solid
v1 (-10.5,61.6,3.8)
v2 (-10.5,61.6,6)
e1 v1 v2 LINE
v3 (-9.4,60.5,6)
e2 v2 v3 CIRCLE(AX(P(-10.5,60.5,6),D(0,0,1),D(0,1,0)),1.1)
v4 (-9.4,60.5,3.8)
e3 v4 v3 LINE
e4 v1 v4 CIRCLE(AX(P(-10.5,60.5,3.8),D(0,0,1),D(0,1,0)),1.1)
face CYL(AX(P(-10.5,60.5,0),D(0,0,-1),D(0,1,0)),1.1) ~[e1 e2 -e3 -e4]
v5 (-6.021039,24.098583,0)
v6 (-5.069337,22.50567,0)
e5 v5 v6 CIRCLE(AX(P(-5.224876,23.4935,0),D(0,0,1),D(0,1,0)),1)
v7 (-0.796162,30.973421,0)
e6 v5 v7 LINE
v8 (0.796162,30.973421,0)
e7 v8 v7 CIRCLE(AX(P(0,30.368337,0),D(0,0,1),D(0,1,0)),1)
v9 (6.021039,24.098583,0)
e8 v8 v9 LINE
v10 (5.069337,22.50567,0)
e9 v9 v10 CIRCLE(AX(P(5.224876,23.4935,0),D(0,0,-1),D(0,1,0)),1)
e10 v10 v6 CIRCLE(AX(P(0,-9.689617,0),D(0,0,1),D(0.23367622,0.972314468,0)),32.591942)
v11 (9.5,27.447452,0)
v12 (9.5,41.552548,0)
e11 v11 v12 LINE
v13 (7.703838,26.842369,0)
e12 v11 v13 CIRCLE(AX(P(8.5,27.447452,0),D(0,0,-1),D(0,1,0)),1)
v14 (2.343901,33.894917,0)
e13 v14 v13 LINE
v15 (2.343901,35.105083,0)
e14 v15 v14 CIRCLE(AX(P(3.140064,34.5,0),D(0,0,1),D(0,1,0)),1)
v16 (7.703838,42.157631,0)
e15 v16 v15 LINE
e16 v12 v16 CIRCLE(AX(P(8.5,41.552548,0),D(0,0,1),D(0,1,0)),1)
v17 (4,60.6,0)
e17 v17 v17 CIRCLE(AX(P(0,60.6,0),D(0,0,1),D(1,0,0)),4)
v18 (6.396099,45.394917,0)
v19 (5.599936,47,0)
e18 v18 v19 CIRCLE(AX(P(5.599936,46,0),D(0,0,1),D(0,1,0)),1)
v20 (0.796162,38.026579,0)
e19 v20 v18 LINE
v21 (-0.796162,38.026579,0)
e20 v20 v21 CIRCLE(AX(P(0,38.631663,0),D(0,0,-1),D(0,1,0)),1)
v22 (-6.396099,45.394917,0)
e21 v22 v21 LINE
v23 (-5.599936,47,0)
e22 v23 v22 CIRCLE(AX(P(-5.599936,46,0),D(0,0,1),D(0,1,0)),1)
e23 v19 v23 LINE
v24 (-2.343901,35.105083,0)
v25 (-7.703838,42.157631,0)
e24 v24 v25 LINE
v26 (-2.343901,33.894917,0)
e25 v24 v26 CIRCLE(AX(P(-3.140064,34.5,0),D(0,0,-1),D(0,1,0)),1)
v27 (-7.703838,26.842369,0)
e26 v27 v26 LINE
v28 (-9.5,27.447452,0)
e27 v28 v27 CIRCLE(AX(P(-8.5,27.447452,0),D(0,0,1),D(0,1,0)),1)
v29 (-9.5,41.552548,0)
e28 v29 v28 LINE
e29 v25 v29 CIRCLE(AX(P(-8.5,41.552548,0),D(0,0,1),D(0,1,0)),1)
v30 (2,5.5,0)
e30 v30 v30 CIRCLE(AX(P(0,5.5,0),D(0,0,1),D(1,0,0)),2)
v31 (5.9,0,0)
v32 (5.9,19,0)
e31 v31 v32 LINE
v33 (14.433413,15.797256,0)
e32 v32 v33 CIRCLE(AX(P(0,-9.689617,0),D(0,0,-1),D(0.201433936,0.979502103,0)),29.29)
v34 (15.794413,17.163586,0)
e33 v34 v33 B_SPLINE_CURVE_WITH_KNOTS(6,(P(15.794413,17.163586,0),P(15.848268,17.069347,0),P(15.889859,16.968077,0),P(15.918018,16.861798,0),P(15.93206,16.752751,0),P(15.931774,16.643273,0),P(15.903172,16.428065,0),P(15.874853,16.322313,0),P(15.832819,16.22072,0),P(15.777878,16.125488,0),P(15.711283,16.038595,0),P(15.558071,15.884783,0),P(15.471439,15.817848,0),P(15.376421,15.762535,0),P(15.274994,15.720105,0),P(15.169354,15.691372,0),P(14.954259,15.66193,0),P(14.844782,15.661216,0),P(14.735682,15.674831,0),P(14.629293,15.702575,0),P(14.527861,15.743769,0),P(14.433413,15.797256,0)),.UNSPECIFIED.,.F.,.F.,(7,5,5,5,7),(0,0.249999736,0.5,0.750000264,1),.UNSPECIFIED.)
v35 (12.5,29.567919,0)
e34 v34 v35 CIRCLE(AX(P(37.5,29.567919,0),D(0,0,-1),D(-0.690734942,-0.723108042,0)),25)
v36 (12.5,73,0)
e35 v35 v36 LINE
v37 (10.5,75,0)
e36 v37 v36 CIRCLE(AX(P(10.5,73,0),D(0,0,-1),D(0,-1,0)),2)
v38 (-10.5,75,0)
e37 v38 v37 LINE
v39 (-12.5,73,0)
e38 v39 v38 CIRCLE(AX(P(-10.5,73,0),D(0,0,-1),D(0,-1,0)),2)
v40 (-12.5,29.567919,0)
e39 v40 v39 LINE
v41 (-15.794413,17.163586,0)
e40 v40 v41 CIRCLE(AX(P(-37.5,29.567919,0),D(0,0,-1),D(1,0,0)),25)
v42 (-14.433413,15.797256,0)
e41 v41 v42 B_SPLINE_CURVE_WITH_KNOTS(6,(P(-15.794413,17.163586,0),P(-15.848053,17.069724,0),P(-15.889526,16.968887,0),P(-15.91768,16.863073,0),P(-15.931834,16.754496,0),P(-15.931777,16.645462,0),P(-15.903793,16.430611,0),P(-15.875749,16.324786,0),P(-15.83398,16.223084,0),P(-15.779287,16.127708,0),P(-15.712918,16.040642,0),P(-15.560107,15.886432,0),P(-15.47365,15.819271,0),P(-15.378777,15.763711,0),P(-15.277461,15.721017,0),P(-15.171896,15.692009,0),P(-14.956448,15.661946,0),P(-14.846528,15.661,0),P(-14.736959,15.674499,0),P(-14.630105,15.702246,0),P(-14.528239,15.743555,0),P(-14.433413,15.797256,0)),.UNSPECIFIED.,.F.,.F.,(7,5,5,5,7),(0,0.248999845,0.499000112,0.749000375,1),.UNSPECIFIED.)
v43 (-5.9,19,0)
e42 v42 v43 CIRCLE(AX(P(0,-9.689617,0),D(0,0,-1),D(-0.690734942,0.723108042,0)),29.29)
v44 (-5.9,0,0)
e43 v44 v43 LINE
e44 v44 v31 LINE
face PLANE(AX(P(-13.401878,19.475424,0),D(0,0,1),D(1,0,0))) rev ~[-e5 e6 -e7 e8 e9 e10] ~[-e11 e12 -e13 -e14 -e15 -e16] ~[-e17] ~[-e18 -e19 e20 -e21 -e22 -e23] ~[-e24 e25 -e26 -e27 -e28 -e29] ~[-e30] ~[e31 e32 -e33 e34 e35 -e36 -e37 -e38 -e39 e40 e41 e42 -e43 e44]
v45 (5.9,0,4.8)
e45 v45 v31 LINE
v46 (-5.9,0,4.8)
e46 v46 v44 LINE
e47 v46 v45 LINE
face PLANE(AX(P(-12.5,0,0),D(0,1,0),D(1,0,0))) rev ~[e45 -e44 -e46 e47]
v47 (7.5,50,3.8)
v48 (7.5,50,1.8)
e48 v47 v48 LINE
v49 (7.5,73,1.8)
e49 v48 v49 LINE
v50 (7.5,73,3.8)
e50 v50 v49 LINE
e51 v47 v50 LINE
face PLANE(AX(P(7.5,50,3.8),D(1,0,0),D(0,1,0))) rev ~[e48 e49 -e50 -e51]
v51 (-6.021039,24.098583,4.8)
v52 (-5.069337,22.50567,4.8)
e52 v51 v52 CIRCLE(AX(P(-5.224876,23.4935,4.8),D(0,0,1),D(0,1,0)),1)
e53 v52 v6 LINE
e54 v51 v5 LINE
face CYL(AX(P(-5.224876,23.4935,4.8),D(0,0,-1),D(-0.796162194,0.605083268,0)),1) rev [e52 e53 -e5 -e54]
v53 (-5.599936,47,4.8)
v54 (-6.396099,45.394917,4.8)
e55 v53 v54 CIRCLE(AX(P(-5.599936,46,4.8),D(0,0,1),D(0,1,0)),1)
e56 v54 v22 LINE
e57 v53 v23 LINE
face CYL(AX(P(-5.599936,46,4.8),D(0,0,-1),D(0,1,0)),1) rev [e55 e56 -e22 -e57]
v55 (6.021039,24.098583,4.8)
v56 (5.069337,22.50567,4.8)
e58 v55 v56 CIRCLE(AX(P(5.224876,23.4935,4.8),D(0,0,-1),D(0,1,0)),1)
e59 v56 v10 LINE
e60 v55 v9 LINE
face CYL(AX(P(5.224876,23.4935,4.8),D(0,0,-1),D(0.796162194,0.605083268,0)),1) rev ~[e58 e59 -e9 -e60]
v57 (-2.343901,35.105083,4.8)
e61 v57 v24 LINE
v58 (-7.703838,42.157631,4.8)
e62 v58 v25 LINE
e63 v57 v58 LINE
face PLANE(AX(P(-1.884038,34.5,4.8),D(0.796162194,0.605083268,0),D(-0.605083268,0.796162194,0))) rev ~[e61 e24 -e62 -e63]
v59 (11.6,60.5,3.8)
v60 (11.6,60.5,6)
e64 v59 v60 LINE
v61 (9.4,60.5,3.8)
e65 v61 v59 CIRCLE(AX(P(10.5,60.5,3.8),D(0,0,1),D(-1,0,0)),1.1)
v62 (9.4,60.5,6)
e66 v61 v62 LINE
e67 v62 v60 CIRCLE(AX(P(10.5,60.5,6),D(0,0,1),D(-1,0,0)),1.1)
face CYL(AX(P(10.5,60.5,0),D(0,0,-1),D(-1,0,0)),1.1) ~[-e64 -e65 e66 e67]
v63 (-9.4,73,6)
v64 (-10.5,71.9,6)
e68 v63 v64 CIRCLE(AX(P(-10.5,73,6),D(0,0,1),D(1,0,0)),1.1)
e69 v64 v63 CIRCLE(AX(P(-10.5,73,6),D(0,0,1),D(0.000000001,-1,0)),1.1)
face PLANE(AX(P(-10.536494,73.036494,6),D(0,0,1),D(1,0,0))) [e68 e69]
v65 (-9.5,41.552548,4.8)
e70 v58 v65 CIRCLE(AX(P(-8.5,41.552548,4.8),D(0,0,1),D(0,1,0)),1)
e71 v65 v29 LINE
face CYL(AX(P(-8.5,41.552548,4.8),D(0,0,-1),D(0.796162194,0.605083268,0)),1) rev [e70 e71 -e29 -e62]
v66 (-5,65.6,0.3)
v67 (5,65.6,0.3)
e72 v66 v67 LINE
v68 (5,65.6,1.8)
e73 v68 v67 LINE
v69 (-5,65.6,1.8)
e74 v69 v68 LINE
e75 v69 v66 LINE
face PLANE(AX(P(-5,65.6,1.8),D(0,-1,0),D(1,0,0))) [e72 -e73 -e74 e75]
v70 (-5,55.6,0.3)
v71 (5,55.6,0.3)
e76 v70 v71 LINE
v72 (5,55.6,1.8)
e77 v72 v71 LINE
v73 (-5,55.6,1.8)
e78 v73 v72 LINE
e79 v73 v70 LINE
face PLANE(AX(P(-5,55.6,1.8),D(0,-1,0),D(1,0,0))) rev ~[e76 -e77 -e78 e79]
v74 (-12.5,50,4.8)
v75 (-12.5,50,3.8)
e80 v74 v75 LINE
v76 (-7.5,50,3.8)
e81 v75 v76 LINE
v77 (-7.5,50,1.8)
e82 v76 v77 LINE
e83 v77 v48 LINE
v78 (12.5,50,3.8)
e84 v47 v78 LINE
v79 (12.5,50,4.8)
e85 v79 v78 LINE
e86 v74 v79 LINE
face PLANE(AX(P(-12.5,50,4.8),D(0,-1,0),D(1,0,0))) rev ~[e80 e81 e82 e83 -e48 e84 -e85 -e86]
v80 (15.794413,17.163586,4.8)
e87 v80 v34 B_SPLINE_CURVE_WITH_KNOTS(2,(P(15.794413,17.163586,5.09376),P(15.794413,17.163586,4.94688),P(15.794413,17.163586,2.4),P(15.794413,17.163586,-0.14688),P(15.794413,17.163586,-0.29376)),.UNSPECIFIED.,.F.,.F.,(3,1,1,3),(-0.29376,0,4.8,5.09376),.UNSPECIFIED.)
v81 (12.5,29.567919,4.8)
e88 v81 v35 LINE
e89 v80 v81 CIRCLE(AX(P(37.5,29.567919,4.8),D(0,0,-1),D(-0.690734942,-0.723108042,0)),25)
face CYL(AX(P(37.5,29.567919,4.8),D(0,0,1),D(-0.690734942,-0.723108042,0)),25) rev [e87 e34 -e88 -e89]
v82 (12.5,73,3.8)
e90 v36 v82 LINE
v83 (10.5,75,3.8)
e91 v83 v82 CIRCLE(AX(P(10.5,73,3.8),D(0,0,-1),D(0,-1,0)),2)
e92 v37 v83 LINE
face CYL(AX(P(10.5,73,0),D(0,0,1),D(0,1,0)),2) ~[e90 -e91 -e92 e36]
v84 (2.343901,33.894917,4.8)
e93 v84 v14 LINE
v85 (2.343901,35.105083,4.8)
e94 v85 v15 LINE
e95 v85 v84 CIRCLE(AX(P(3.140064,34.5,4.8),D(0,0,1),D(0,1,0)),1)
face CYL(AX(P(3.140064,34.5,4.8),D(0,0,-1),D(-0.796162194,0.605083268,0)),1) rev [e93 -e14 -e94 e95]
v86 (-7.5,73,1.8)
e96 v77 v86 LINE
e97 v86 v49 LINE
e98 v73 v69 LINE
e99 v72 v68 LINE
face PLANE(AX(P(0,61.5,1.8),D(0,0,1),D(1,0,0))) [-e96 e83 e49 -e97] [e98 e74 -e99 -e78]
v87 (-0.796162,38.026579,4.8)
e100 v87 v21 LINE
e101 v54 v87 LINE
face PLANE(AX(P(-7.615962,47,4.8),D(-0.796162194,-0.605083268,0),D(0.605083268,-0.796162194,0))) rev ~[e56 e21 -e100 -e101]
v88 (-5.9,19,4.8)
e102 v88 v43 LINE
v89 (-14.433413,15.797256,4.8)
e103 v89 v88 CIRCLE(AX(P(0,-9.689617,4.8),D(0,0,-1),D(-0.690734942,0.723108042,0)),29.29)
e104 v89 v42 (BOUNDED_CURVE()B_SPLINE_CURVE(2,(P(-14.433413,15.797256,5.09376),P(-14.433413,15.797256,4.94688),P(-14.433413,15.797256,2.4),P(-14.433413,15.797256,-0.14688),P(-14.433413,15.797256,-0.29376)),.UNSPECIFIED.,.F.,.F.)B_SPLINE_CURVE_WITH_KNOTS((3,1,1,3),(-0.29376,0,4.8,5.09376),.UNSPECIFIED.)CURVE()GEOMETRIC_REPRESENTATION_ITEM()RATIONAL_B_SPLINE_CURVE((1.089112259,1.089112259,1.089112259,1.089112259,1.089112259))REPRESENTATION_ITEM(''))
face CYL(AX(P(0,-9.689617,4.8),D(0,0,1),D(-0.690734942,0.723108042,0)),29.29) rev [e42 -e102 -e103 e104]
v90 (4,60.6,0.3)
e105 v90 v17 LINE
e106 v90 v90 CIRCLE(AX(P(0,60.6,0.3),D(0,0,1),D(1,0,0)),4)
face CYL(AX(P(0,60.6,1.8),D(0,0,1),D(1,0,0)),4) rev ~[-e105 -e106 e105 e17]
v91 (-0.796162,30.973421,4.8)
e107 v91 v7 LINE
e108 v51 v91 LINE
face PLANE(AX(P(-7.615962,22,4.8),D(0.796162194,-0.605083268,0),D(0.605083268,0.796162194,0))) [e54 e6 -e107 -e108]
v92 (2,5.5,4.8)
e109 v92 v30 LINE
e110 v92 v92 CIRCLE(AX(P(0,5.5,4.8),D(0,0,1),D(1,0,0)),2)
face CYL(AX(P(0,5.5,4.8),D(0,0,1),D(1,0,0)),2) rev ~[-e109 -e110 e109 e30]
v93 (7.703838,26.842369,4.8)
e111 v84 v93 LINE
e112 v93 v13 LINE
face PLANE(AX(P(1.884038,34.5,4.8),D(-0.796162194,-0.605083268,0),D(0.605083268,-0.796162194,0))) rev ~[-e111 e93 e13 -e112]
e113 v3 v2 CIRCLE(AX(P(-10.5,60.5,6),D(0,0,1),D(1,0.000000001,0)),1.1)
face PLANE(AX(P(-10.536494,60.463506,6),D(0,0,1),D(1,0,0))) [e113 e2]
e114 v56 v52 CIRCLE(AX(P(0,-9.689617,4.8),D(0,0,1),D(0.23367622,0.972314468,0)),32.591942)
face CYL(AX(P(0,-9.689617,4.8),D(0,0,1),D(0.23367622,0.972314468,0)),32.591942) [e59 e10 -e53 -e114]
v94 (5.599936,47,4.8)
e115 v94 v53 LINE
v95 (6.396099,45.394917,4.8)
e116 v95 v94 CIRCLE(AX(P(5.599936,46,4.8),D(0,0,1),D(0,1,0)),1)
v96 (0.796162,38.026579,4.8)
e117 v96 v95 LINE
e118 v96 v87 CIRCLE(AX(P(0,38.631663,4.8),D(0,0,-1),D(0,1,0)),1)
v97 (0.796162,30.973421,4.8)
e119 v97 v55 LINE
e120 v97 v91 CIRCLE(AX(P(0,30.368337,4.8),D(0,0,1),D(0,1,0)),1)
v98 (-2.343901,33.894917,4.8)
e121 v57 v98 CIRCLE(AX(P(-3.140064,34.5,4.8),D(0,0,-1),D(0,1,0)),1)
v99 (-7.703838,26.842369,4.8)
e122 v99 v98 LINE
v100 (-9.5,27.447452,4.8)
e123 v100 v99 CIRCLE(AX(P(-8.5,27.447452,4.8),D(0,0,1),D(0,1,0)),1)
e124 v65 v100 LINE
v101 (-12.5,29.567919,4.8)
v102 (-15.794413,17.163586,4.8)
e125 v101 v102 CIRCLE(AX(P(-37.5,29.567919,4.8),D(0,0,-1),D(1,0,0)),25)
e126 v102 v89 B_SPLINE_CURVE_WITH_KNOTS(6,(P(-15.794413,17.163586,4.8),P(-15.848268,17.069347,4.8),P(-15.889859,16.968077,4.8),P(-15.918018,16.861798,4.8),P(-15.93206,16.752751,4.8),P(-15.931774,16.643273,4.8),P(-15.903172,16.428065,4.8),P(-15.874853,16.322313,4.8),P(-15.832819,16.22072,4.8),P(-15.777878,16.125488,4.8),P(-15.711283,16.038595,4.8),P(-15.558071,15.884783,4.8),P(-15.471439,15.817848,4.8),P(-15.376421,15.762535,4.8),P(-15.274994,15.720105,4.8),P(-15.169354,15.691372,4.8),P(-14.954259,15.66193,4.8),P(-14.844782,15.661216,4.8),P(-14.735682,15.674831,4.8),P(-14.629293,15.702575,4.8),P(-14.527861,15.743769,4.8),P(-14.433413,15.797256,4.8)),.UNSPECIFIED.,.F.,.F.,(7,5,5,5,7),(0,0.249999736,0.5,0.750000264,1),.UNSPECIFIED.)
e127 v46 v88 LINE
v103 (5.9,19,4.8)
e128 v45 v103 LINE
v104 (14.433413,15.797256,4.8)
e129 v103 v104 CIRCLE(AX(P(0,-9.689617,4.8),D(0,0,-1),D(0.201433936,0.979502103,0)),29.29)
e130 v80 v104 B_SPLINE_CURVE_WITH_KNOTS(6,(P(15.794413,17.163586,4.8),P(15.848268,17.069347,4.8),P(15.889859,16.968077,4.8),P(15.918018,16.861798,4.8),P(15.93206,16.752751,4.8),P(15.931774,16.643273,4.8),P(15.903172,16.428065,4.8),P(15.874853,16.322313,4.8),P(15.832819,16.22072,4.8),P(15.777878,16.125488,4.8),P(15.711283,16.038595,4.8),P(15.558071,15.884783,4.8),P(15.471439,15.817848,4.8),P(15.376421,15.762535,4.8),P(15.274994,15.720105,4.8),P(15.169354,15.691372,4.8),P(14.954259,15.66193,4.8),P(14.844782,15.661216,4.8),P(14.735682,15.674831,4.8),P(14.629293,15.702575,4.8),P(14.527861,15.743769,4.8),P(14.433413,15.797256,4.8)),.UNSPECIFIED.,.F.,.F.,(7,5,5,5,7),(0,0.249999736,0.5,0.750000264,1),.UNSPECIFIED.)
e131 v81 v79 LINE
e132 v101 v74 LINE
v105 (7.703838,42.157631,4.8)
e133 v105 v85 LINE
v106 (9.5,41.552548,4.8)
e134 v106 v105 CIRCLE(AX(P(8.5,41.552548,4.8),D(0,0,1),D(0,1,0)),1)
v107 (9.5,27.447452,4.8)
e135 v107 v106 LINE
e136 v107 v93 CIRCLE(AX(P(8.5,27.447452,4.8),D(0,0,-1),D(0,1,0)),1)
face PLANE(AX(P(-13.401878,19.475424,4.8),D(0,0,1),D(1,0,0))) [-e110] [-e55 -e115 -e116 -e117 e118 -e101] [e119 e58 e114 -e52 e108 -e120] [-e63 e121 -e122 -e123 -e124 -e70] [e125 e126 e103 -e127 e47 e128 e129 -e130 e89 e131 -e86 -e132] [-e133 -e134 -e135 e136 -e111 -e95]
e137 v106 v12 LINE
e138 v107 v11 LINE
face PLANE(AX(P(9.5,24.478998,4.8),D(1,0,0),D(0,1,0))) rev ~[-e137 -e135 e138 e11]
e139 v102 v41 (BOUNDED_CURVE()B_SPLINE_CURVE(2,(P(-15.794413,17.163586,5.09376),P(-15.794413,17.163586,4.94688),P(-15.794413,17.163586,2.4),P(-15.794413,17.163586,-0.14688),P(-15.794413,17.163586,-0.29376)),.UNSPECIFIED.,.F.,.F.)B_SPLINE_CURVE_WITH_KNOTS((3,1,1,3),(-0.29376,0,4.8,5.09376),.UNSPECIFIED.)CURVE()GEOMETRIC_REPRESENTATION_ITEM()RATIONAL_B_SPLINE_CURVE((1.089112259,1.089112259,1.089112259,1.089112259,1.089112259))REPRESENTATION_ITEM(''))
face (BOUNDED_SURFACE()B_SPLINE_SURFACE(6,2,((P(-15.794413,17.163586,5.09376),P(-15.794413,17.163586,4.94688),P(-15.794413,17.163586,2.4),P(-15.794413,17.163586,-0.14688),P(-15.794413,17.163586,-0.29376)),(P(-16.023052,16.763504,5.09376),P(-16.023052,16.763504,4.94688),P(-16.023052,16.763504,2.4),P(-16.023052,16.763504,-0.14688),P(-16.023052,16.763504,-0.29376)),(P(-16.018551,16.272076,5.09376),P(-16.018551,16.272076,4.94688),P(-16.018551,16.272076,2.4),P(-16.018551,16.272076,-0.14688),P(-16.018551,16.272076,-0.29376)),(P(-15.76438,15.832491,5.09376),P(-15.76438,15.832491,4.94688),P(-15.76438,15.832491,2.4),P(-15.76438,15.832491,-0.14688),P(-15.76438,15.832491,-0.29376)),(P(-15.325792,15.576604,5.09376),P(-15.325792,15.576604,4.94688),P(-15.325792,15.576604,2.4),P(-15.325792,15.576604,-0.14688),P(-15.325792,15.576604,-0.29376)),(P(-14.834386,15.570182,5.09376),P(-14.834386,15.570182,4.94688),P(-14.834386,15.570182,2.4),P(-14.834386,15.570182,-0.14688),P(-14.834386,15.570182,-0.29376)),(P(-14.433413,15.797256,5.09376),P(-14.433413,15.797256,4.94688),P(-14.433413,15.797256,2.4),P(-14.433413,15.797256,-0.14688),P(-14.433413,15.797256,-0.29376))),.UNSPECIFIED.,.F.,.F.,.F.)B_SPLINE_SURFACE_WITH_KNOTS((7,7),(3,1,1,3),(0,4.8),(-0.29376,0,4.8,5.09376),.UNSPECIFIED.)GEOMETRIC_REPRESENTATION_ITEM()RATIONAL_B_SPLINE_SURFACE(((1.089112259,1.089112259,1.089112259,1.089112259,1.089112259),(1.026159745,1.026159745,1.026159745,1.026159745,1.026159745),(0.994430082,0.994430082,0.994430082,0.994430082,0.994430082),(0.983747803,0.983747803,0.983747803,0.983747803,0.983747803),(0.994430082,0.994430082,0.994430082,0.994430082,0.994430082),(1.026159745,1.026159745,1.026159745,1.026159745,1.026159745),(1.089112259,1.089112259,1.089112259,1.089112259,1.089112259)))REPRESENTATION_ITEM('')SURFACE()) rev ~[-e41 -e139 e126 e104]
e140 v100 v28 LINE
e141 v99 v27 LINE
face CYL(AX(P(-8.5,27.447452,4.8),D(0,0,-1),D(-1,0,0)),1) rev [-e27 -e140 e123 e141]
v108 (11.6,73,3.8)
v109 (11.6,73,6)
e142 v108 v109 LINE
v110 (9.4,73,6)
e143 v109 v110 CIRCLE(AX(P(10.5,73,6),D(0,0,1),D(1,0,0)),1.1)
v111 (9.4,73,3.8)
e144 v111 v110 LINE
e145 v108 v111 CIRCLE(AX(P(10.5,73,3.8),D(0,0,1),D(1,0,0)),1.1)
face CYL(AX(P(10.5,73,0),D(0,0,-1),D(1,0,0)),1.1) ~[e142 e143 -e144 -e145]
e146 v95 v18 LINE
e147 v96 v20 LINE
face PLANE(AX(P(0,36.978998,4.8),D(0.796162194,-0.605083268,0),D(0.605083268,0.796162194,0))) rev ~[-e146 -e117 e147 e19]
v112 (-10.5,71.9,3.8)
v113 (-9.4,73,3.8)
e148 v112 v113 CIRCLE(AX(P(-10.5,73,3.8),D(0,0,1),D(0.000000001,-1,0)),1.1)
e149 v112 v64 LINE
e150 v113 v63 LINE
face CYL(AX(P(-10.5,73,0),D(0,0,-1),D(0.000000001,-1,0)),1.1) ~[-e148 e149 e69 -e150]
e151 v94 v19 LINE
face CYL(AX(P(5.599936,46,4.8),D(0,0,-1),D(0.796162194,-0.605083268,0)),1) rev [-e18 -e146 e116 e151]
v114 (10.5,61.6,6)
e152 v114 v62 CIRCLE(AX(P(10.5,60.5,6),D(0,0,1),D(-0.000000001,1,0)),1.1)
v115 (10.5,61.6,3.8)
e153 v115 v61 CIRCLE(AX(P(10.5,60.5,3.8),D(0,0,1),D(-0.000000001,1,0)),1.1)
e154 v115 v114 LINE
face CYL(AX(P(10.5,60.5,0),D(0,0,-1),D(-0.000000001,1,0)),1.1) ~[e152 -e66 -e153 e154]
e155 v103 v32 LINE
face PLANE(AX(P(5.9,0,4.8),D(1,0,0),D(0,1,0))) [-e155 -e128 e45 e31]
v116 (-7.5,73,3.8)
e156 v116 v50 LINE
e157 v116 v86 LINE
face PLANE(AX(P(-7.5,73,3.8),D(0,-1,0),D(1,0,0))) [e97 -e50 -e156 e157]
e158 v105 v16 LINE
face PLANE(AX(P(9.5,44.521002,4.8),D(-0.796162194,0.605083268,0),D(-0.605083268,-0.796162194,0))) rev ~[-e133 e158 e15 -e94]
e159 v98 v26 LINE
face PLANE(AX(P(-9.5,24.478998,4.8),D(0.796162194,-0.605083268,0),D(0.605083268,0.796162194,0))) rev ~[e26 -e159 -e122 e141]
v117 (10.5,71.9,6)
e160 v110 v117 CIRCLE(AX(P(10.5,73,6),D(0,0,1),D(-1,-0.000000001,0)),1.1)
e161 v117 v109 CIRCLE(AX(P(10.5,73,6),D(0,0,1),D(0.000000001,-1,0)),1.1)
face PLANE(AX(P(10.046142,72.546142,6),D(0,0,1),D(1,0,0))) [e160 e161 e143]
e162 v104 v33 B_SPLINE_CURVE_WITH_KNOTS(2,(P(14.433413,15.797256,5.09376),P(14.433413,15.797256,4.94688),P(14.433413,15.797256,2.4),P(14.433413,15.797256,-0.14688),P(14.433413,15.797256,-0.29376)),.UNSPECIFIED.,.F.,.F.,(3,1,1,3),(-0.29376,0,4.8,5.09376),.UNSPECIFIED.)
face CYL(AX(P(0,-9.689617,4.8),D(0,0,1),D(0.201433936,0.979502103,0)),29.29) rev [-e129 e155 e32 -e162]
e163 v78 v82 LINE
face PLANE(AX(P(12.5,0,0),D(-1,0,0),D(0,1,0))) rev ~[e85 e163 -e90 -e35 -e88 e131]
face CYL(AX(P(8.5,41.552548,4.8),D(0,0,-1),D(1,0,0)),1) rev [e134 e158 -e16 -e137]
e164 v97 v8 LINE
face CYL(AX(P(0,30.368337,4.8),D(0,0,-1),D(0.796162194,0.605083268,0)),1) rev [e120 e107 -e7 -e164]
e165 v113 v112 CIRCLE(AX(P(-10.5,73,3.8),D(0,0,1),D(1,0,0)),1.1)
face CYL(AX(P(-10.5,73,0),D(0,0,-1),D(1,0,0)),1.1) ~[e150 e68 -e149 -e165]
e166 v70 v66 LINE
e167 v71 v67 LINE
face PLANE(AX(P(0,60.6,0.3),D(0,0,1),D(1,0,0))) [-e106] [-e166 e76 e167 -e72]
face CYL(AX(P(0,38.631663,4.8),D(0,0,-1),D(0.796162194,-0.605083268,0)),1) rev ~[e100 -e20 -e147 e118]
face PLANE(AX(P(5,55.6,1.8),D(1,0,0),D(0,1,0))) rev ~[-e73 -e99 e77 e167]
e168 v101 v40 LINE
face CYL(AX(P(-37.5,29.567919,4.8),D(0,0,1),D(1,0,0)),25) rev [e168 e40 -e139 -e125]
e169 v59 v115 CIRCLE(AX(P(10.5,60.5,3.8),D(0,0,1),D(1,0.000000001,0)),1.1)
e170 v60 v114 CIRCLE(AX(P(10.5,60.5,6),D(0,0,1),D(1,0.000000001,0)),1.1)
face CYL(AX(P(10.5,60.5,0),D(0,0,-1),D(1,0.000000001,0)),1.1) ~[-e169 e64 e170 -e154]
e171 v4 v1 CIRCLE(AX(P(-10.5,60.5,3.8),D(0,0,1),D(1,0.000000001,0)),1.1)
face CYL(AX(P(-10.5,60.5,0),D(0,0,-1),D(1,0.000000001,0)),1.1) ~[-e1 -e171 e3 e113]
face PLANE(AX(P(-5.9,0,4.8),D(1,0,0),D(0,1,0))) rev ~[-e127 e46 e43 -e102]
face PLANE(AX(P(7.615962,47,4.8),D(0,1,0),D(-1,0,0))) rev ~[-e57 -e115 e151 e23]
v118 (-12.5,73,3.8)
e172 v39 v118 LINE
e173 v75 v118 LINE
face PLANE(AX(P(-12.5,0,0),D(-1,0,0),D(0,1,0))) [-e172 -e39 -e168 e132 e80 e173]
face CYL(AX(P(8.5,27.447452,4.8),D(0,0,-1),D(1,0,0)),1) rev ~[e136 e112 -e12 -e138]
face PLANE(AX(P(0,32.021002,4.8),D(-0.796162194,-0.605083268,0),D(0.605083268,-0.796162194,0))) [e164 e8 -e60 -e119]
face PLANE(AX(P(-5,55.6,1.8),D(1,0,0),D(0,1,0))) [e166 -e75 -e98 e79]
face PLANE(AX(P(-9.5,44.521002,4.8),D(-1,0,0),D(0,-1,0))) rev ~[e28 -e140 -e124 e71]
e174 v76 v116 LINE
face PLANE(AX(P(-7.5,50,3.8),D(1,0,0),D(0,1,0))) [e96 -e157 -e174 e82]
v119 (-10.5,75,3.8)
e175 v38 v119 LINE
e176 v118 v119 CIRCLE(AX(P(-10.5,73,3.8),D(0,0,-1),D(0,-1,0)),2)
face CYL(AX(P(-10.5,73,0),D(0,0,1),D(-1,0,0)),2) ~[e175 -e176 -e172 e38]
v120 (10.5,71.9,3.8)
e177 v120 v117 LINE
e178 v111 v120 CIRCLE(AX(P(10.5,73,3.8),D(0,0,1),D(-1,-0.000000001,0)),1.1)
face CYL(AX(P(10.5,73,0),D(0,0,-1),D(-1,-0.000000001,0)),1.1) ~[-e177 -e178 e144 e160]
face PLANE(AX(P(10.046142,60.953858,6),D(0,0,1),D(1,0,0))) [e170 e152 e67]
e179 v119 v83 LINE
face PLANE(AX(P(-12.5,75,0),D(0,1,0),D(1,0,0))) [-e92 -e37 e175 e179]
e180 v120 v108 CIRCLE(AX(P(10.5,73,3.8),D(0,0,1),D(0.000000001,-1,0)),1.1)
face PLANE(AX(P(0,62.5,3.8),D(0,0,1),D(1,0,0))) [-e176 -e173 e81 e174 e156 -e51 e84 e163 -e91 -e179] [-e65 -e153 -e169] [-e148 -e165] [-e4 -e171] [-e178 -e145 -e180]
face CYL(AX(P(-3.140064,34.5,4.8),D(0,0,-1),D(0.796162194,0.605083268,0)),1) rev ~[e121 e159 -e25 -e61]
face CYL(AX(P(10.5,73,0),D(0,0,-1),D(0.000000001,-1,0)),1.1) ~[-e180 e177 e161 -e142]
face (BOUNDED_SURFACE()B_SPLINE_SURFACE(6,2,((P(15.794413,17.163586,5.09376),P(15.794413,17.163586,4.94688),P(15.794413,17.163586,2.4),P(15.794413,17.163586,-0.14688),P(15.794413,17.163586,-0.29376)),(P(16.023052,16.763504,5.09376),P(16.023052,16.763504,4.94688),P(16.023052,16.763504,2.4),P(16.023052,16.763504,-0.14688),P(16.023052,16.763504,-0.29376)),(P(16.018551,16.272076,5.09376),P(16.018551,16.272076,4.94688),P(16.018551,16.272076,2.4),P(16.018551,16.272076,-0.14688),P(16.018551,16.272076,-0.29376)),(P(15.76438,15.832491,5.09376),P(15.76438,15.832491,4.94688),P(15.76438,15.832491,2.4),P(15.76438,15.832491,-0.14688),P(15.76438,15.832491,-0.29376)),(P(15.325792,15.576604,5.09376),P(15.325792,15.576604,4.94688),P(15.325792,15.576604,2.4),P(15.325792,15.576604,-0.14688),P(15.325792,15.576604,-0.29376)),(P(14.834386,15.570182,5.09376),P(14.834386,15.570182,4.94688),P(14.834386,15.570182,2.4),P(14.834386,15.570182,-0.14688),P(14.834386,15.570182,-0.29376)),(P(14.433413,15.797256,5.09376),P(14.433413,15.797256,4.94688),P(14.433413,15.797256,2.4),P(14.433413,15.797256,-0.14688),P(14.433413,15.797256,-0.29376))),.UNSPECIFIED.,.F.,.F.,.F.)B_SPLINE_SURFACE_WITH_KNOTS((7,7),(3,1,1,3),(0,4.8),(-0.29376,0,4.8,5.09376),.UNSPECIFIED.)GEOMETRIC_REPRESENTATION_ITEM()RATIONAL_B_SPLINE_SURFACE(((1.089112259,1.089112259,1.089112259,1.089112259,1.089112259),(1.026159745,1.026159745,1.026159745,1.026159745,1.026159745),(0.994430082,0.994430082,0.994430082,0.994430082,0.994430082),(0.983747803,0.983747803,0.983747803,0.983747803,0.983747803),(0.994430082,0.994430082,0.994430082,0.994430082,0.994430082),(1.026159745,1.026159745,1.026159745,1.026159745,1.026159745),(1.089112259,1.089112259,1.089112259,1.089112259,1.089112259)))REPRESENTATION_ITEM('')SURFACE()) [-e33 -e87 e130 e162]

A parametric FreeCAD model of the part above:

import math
import FreeCAD as App
import Part
import Sketcher

V = App.Vector


def edges_at(feature, points):
    """Names of the edges that pass closest to the given points."""
    edges = feature.Shape.Edges
    near = lambda p: min(range(len(edges)), key=lambda i: edges[i].distToShape(Part.Vertex(*p))[0])
    return sorted({f"Edge{near(p) + 1}" for p in points})

doc = App.newDocument("Part")
body = doc.addObject("PartDesign::Body", "Body")

# Sketch on XY plane
sketch1 = body.newObject("Sketcher::SketchObject", "Sketch")
sketch1.AttachmentSupport = (doc.getObject("XY_Plane"), [""])
sketch1.MapMode = "FlatFace"
sketch1.addGeometry([
    Part.LineSegment(V(-12, 75, 0), V(-12, 0, 0)),
    Part.LineSegment(V(-12, 0, 0), V(12, 0, 0)),
    Part.LineSegment(V(12, 0, 0), V(12, 75, 0)),
    Part.LineSegment(V(12, 75, 0), V(-12, 75, 0)),
], False)
sketch1.addConstraint([
    Sketcher.Constraint("Coincident", 0, 2, 1, 1),
    Sketcher.Constraint("Coincident", 1, 2, 2, 1),
    Sketcher.Constraint("Coincident", 2, 2, 3, 1),
    Sketcher.Constraint("Coincident", 3, 2, 0, 1),
    Sketcher.Constraint("Vertical", 0),
    Sketcher.Constraint("Horizontal", 1),
    Sketcher.Constraint("Vertical", 2),
    Sketcher.Constraint("Horizontal", 3),
    Sketcher.Constraint("Symmetric", 0, 2, 1, 2, -1, 1),
    Sketcher.Constraint("DistanceX", 1, 1, 1, 2, 25.0),
    Sketcher.Constraint("DistanceY", 0, 2, 0, 1, 75.0),
])
pad1 = body.newObject("PartDesign::Pad", "Pad")
pad1.Profile = sketch1
pad1.Length = 4.8

# Sketch on XY plane
sketch2 = body.newObject("Sketcher::SketchObject", "Sketch001")
sketch2.AttachmentSupport = (doc.getObject("XY_Plane"), [""])
sketch2.MapMode = "FlatFace"
sketch2.AttachmentOffset = App.Placement(V(0, 0, 4.8), App.Rotation())
sketch2.addGeometry([
    Part.ArcOfCircle(Part.Circle(V(-10.5, 73, 0), V(0, 0, 1), 1.1), math.radians(0), math.radians(270)),  # 0
    Part.ArcOfCircle(Part.Circle(V(-10.5, 73, 0), V(0, 0, 1), 1.1), math.radians(-90), math.radians(0)),  # 1
    Part.ArcOfCircle(Part.Circle(V(10.5, 73, 0), V(0, 0, 1), 1.1), math.radians(-180), math.radians(-90)),  # 2
    Part.ArcOfCircle(Part.Circle(V(10.5, 73, 0), V(0, 0, 1), 1.1), math.radians(-90), math.radians(0)),  # 3
    Part.ArcOfCircle(Part.Circle(V(10.5, 73, 0), V(0, 0, 1), 1.1), math.radians(0), math.radians(180)),  # 4
    Part.ArcOfCircle(Part.Circle(V(-10.5, 60.5, 0), V(0, 0, 1), 1.1), math.radians(90), math.radians(360)),  # 5
    Part.ArcOfCircle(Part.Circle(V(-10.5, 60.5, 0), V(0, 0, 1), 1.1), math.radians(0), math.radians(90)),  # 6
    Part.ArcOfCircle(Part.Circle(V(10.5, 60.5, 0), V(0, 0, 1), 1.1), math.radians(90), math.radians(180)),  # 7
    Part.ArcOfCircle(Part.Circle(V(10.5, 60.5, 0), V(0, 0, 1), 1.1), math.radians(180), math.radians(360)),  # 8
    Part.ArcOfCircle(Part.Circle(V(10.5, 60.5, 0), V(0, 0, 1), 1.1), math.radians(0), math.radians(90)),  # 9
], False)
sketch2.addConstraint([
    Sketcher.Constraint("Tangent", 0, 1, 1, 2),
    Sketcher.Constraint("Coincident", 1, 1, 0, 2),
    Sketcher.Constraint("Tangent", 2, 2, 3, 1),
    Sketcher.Constraint("Tangent", 3, 2, 4, 1),
    Sketcher.Constraint("Tangent", 4, 2, 2, 1),
    Sketcher.Constraint("Tangent", 5, 1, 6, 2),
    Sketcher.Constraint("Coincident", 6, 1, 5, 2),
    Sketcher.Constraint("Tangent", 7, 2, 8, 1),
    Sketcher.Constraint("Tangent", 8, 2, 9, 1),
    Sketcher.Constraint("Tangent", 9, 2, 7, 1),
    Sketcher.Constraint("Equal", 1, 2),
    Sketcher.Constraint("Equal", 4, 5),
    Sketcher.Constraint("Equal", 6, 7),
    Sketcher.Constraint("Symmetric", 0, 3, 2, 3, -2),
    Sketcher.Constraint("Symmetric", 5, 3, 7, 3, -2),
    Sketcher.Constraint("Horizontal", 4, 3, 0, 1),
    Sketcher.Constraint("Horizontal", 0, 1, 3, 2),
    Sketcher.Constraint("Horizontal", 3, 2, 4, 2),
    Sketcher.Constraint("Horizontal", 9, 3, 6, 1),
    Sketcher.Constraint("Horizontal", 6, 1, 7, 2),
    Sketcher.Constraint("Horizontal", 7, 2, 8, 2),
    Sketcher.Constraint("Vertical", 1, 3, 5, 3),
    Sketcher.Constraint("Vertical", 6, 3, 1, 1),
    Sketcher.Constraint("Vertical", 9, 3, 2, 2),
    Sketcher.Constraint("Vertical", 1, 1, 5, 1),
    Sketcher.Constraint("Vertical", 2, 2, 9, 2),
    Sketcher.Constraint("Radius", 0, 1.1),
    Sketcher.Constraint("DistanceY", -1, 1, 0, 3, 73.0),
    Sketcher.Constraint("DistanceX", 0, 3, 2, 3, 21.0),
    Sketcher.Constraint("DistanceY", -1, 1, 5, 3, 60.5),
])
pocket1 = body.newObject("PartDesign::Pocket", "Pocket")
pocket1.Profile = sketch2
pocket1.Length = 5

# Sketch on XY plane
sketch3 = body.newObject("Sketcher::SketchObject", "Sketch002")
sketch3.AttachmentSupport = (doc.getObject("XY_Plane"), [""])
sketch3.MapMode = "FlatFace"
sketch3.AttachmentOffset = App.Placement(V(0, 0, 4.8), App.Rotation())
sketch3.addGeometry([
    Part.LineSegment(V(-12, 75, 0), V(-12, 50, 0)),
    Part.LineSegment(V(-12, 50, 0), V(12, 50, 0)),
    Part.LineSegment(V(12, 50, 0), V(12, 75, 0)),
    Part.LineSegment(V(12, 75, 0), V(-12, 75, 0)),
], False)
sketch3.addConstraint([
    Sketcher.Constraint("Coincident", 0, 2, 1, 1),
    Sketcher.Constraint("Coincident", 1, 2, 2, 1),
    Sketcher.Constraint("Coincident", 2, 2, 3, 1),
    Sketcher.Constraint("Coincident", 3, 2, 0, 1),
    Sketcher.Constraint("Vertical", 0),
    Sketcher.Constraint("Horizontal", 1),
    Sketcher.Constraint("Vertical", 2),
    Sketcher.Constraint("Horizontal", 3),
    Sketcher.Constraint("Equal", 3, 0),
    Sketcher.Constraint("DistanceX", 1, 1, 1, 2, 25.0),
    Sketcher.Constraint("DistanceY", -1, 1, 0, 2, 50.0),
    Sketcher.Constraint("DistanceX", 0, 2, -1, 1, 12.5),
])
pocket2 = body.newObject("PartDesign::Pocket", "Pocket001")
pocket2.Profile = sketch3
pocket2.Length = 1

# Sketch on XY plane
sketch4 = body.newObject("Sketcher::SketchObject", "Sketch003")
sketch4.AttachmentSupport = (doc.getObject("XY_Plane"), [""])
sketch4.MapMode = "FlatFace"
sketch4.AttachmentOffset = App.Placement(V(0, 0, 3.8), App.Rotation())
sketch4.addGeometry([
    Part.LineSegment(V(-8, 73, 0), V(-8, 50, 0)),
    Part.LineSegment(V(-8, 50, 0), V(8, 50, 0)),
    Part.LineSegment(V(8, 50, 0), V(8, 73, 0)),
    Part.LineSegment(V(8, 73, 0), V(-8, 73, 0)),
], False)
sketch4.addConstraint([
    Sketcher.Constraint("Coincident", 0, 2, 1, 1),
    Sketcher.Constraint("Coincident", 1, 2, 2, 1),
    Sketcher.Constraint("Coincident", 2, 2, 3, 1),
    Sketcher.Constraint("Coincident", 3, 2, 0, 1),
    Sketcher.Constraint("Vertical", 0),
    Sketcher.Constraint("Horizontal", 1),
    Sketcher.Constraint("Vertical", 2),
    Sketcher.Constraint("Horizontal", 3),
    Sketcher.Constraint("DistanceX", 1, 1, 1, 2, 15.0),
    Sketcher.Constraint("DistanceY", 0, 2, 0, 1, 23.0),
    Sketcher.Constraint("DistanceY", -1, 1, 0, 2, 50.0),
    Sketcher.Constraint("DistanceX", 0, 2, -1, 1, 7.5),
])
pocket3 = body.newObject("PartDesign::Pocket", "Pocket002")
pocket3.Profile = sketch4
pocket3.Length = 2

# Sketch on XY plane
sketch5 = body.newObject("Sketcher::SketchObject", "Sketch004")
sketch5.AttachmentSupport = (doc.getObject("XY_Plane"), [""])
sketch5.MapMode = "FlatFace"
sketch5.AttachmentOffset = App.Placement(V(0, 0, 1.8), App.Rotation())
sketch5.addGeometry(Part.Circle(V(0, 60.6, 0), V(0, 0, 1), 4), False)
sketch5.addConstraint([
    Sketcher.Constraint("PointOnObject", 0, 3, -2),
    Sketcher.Constraint("Diameter", 0, 8.0),
    Sketcher.Constraint("DistanceY", -1, 1, 0, 3, 60.6),
])
pocket4 = body.newObject("PartDesign::Pocket", "Pocket003")
pocket4.Profile = sketch5
pocket4.Type = "ThroughAll"

# Sketch on XY plane
sketch6 = body.newObject("Sketcher::SketchObject", "Sketch005")
sketch6.AttachmentSupport = (doc.getObject("XY_Plane"), [""])
sketch6.MapMode = "FlatFace"
sketch6.AttachmentOffset = App.Placement(V(0, 0, 1.8), App.Rotation())
sketch6.addGeometry([
    Part.LineSegment(V(-5, 65.6, 0), V(-5, 55.6, 0)),  # 0
    Part.LineSegment(V(-5, 55.6, 0), V(5, 55.6, 0)),  # 1
    Part.LineSegment(V(5, 55.6, 0), V(5, 65.6, 0)),  # 2
    Part.LineSegment(V(5, 65.6, 0), V(-5, 65.6, 0)),  # 3
    Part.Circle(V(0, 60.6, 0), V(0, 0, 1), 4),  # 4
], False)
sketch6.addConstraint([
    Sketcher.Constraint("Coincident", 0, 2, 1, 1),
    Sketcher.Constraint("Coincident", 1, 2, 2, 1),
    Sketcher.Constraint("Coincident", 2, 2, 3, 1),
    Sketcher.Constraint("Coincident", 3, 2, 0, 1),
    Sketcher.Constraint("Vertical", 0),
    Sketcher.Constraint("Horizontal", 1),
    Sketcher.Constraint("Vertical", 2),
    Sketcher.Constraint("Horizontal", 3),
    Sketcher.Constraint("PointOnObject", 4, 3, -2),
    Sketcher.Constraint("Equal", 3, 0),
    Sketcher.Constraint("Diameter", 4, 8.0),
    Sketcher.Constraint("DistanceX", 1, 1, 1, 2, 10.0),
    Sketcher.Constraint("DistanceX", 0, 2, -1, 1, 5.0),
    Sketcher.Constraint("DistanceY", 0, 2, 4, 3, 5.0),
    Sketcher.Constraint("DistanceY", -1, 1, 4, 3, 60.6),
])
pocket5 = body.newObject("PartDesign::Pocket", "Pocket004")
pocket5.Profile = sketch6
pocket5.Length = 1.5

# Sketch on XY plane
sketch7 = body.newObject("Sketcher::SketchObject", "Sketch006")
sketch7.AttachmentSupport = (doc.getObject("XY_Plane"), [""])
sketch7.MapMode = "FlatFace"
sketch7.addGeometry([
    Part.ArcOfCircle(Part.Circle(V(-10.5, 60.5, 0), V(0, 0, 1), 1.1), math.radians(90), math.radians(360)),  # 0
    Part.ArcOfCircle(Part.Circle(V(-10.5, 60.5, 0), V(0, 0, 1), 1.1), math.radians(0), math.radians(90)),  # 1
    Part.ArcOfCircle(Part.Circle(V(-10.5, 73, 0), V(0, 0, 1), 1.1), math.radians(0), math.radians(270)),  # 2
    Part.ArcOfCircle(Part.Circle(V(-10.5, 73, 0), V(0, 0, 1), 1.1), math.radians(-90), math.radians(0)),  # 3
    Part.ArcOfCircle(Part.Circle(V(10.5, 60.5, 0), V(0, 0, 1), 1.1), math.radians(90), math.radians(180)),  # 4
    Part.ArcOfCircle(Part.Circle(V(10.5, 60.5, 0), V(0, 0, 1), 1.1), math.radians(180), math.radians(360)),  # 5
    Part.ArcOfCircle(Part.Circle(V(10.5, 60.5, 0), V(0, 0, 1), 1.1), math.radians(0), math.radians(90)),  # 6
    Part.ArcOfCircle(Part.Circle(V(10.5, 73, 0), V(0, 0, 1), 1.1), math.radians(-180), math.radians(-90)),  # 7
    Part.ArcOfCircle(Part.Circle(V(10.5, 73, 0), V(0, 0, 1), 1.1), math.radians(-90), math.radians(0)),  # 8
    Part.ArcOfCircle(Part.Circle(V(10.5, 73, 0), V(0, 0, 1), 1.1), math.radians(0), math.radians(180)),  # 9
], False)
sketch7.addConstraint([
    Sketcher.Constraint("Tangent", 0, 1, 1, 2),
    Sketcher.Constraint("Coincident", 1, 1, 0, 2),
    Sketcher.Constraint("Tangent", 2, 1, 3, 2),
    Sketcher.Constraint("Coincident", 3, 1, 2, 2),
    Sketcher.Constraint("Tangent", 4, 2, 5, 1),
    Sketcher.Constraint("Tangent", 5, 2, 6, 1),
    Sketcher.Constraint("Tangent", 6, 2, 4, 1),
    Sketcher.Constraint("Tangent", 7, 2, 8, 1),
    Sketcher.Constraint("Tangent", 8, 2, 9, 1),
    Sketcher.Constraint("Tangent", 9, 2, 7, 1),
    Sketcher.Constraint("Equal", 1, 2),
    Sketcher.Constraint("Equal", 3, 4),
    Sketcher.Constraint("Equal", 6, 7),
    Sketcher.Constraint("Symmetric", 0, 3, 4, 3, -2),
    Sketcher.Constraint("Symmetric", 2, 3, 7, 3, -2),
    Sketcher.Constraint("Horizontal", 6, 3, 1, 1),
    Sketcher.Constraint("Horizontal", 9, 3, 2, 1),
    Sketcher.Constraint("Horizontal", 1, 1, 4, 2),
    Sketcher.Constraint("Horizontal", 4, 2, 5, 2),
    Sketcher.Constraint("Horizontal", 2, 1, 8, 2),
    Sketcher.Constraint("Horizontal", 8, 2, 9, 2),
    Sketcher.Constraint("Vertical", 1, 3, 2, 3),
    Sketcher.Constraint("Vertical", 3, 3, 0, 1),
    Sketcher.Constraint("Vertical", 0, 1, 3, 1),
    Sketcher.Constraint("Vertical", 9, 3, 6, 2),
    Sketcher.Constraint("Vertical", 6, 2, 7, 2),
    Sketcher.Constraint("Radius", 0, 1.1),
    Sketcher.Constraint("DistanceY", -1, 1, 2, 3, 73.0),
    Sketcher.Constraint("DistanceX", 0, 3, 4, 3, 21.0),
    Sketcher.Constraint("DistanceY", -1, 1, 0, 3, 60.5),
])
pad2 = body.newObject("PartDesign::Pad", "Pad001")
pad2.Profile = sketch7
pad2.Length = 6

# Sketch on XY plane
sketch8 = body.newObject("Sketcher::SketchObject", "Sketch007")
sketch8.AttachmentSupport = (doc.getObject("XY_Plane"), [""])
sketch8.MapMode = "FlatFace"
sketch8.AttachmentOffset = App.Placement(V(0, 0, 4.8), App.Rotation())
sketch8.addGeometry(Part.Circle(V(0, 5.5, 0), V(0, 0, 1), 2), False)
sketch8.addConstraint([
    Sketcher.Constraint("PointOnObject", 0, 3, -2),
    Sketcher.Constraint("Diameter", 0, 4.0),
    Sketcher.Constraint("DistanceY", -1, 1, 0, 3, 5.5),
])
pocket6 = body.newObject("PartDesign::Pocket", "Pocket005")
pocket6.Profile = sketch8
pocket6.Type = "ThroughAll"
pocket6.Midplane = True

# Sketch on XY plane
sketch9 = body.newObject("Sketcher::SketchObject", "Sketch008")
sketch9.AttachmentSupport = (doc.getObject("XY_Plane"), [""])
sketch9.MapMode = "FlatFace"
sketch9.AttachmentOffset = App.Placement(V(0, 0, 4.8), App.Rotation())
sketch9.addGeometry([
    Part.LineSegment(V(-12, 19, 0), V(-12, 0, 0)),  # 0
    Part.LineSegment(V(-12, 0, 0), V(-6, 0, 0)),  # 1
    Part.LineSegment(V(-6, 0, 0), V(-6, 19, 0)),  # 2
    Part.LineSegment(V(-6, 19, 0), V(-12, 19, 0)),  # 3
    Part.LineSegment(V(6, 19, 0), V(6, 0, 0)),  # 4
    Part.LineSegment(V(6, 0, 0), V(12, 0, 0)),  # 5
    Part.LineSegment(V(12, 0, 0), V(12, 19, 0)),  # 6
    Part.LineSegment(V(12, 19, 0), V(6, 19, 0)),  # 7
], False)
sketch9.addConstraint([
    Sketcher.Constraint("Coincident", 0, 2, 1, 1),
    Sketcher.Constraint("Coincident", 1, 2, 2, 1),
    Sketcher.Constraint("Coincident", 2, 2, 3, 1),
    Sketcher.Constraint("Coincident", 3, 2, 0, 1),
    Sketcher.Constraint("Coincident", 4, 2, 5, 1),
    Sketcher.Constraint("Coincident", 5, 2, 6, 1),
    Sketcher.Constraint("Coincident", 6, 2, 7, 1),
    Sketcher.Constraint("Coincident", 7, 2, 4, 1),
    Sketcher.Constraint("Vertical", 0),
    Sketcher.Constraint("Horizontal", 1),
    Sketcher.Constraint("Vertical", 2),
    Sketcher.Constraint("Horizontal", 3),
    Sketcher.Constraint("Vertical", 4),
    Sketcher.Constraint("Horizontal", 5),
    Sketcher.Constraint("Vertical", 6),
    Sketcher.Constraint("Horizontal", 7),
    Sketcher.Constraint("Symmetric", 1, 2, 4, 2, -1, 1),
    Sketcher.Constraint("Symmetric", 0, 2, 5, 2, -2),
    Sketcher.Constraint("Horizontal", 3, 2, 6, 2),
    Sketcher.Constraint("DistanceY", 0, 2, 0, 1, 19.0),
    Sketcher.Constraint("DistanceX", 1, 1, 1, 2, 6.6),
    Sketcher.Constraint("DistanceX", 0, 2, 5, 2, 25.0),
])
pocket7 = body.newObject("PartDesign::Pocket", "Pocket006")
pocket7.Profile = sketch9
pocket7.Type = "ThroughAll"

# Sketch on XY plane
sketch10 = body.newObject("Sketcher::SketchObject", "Sketch009")
sketch10.AttachmentSupport = (doc.getObject("XY_Plane"), [""])
sketch10.MapMode = "FlatFace"
sketch10.AttachmentOffset = App.Placement(V(0, 0, 4.8), App.Rotation())
sketch10.addGeometry([
    Part.ArcOfCircle(Part.Circle(V(0, -10, 0), V(0, 0, 1), 29), math.radians(102), math.radians(134)),  # 0
    Part.LineSegment(V(-6, 19, 0), V(-12, 19, 0)),  # 1
    Part.LineSegment(V(-12, 19, 0), V(-12, 30, 0)),  # 2
    Part.ArcOfCircle(Part.Circle(V(-37, 30, 0), V(0, 0, 1), 25), math.radians(-46), math.radians(0)),  # 3
    Part.ArcOfCircle(Part.Circle(V(0, -10, 0), V(0, 0, 1), 29), math.radians(46), math.radians(78)),  # 4
    Part.ArcOfCircle(Part.Circle(V(37, 30, 0), V(0, 0, 1), 25), math.radians(180), math.radians(226)),  # 5
    Part.LineSegment(V(12, 30, 0), V(12, 19, 0)),  # 6
    Part.LineSegment(V(12, 19, 0), V(6, 19, 0)),  # 7
], False)
sketch10.addConstraint([
    Sketcher.Constraint("Coincident", 0, 1, 1, 1),
    Sketcher.Constraint("Coincident", 1, 2, 2, 1),
    Sketcher.Constraint("Tangent", 2, 2, 3, 2),
    Sketcher.Constraint("Tangent", 3, 1, 0, 2),
    Sketcher.Constraint("Tangent", 4, 1, 5, 2),
    Sketcher.Constraint("Tangent", 5, 1, 6, 1),
    Sketcher.Constraint("Coincident", 6, 2, 7, 1),
    Sketcher.Constraint("Coincident", 7, 2, 4, 2),
    Sketcher.Constraint("Horizontal", 1),
    Sketcher.Constraint("Vertical", 2),
    Sketcher.Constraint("Vertical", 6),
    Sketcher.Constraint("Horizontal", 7),
    Sketcher.Constraint("Coincident", 4, 3, 0, 3),
    Sketcher.Constraint("Equal", 0, 4),
    Sketcher.Constraint("Equal", 3, 5),
    Sketcher.Constraint("Symmetric", 3, 3, 5, 3, -2),
    Sketcher.Constraint("Horizontal", 1, 2, 6, 2),
    Sketcher.Constraint("Radius", 3, 25.0),
    Sketcher.Constraint("Radius", 0, 29.29),
    Sketcher.Constraint("DistanceX", 1, 2, 1, 1, 6.6),
    Sketcher.Constraint("DistanceY", -1, 1, 0, 1, 19.0),
    Sketcher.Constraint("DistanceX", 3, 3, 5, 3, 75.0),
])
pad3 = body.newObject("PartDesign::Pad", "Pad002")
pad3.Profile = sketch10
pad3.Length = 4.8
pad3.Reversed = True
doc.recompute()

fillet = body.newObject("PartDesign::Fillet", "Fillet")
fillet.Base = (pad3, edges_at(pad3, [(-12.5, 75, 1.9), (12.5, 75, 1.9)]))
fillet.Radius = 2
doc.recompute()

fillet2 = body.newObject("PartDesign::Fillet", "Fillet001")
fillet2.Base = (fillet, edges_at(fillet, [(-20.232, 11.49, 2.4), (20.232, 11.49, 2.4)]))
fillet2.Radius = 1

# Sketch on XY plane
sketch11 = body.newObject("Sketcher::SketchObject", "Sketch010")
sketch11.AttachmentSupport = (doc.getObject("XY_Plane"), [""])
sketch11.MapMode = "FlatFace"
sketch11.AttachmentOffset = App.Placement(V(0, 0, 4.8), App.Rotation())
sketch11.addGeometry([
    Part.LineSegment(V(-2, 34, 0), V(-10, 45, 0)),  # 0
    Part.LineSegment(V(-10, 45, 0), V(-10, 24, 0)),  # 1
    Part.LineSegment(V(-10, 24, 0), V(-2, 34, 0)),  # 2
    Part.LineSegment(V(0, 37, 0), V(8, 47, 0)),  # 3
    Part.LineSegment(V(8, 47, 0), V(-8, 47, 0)),  # 4
    Part.LineSegment(V(-8, 47, 0), V(0, 37, 0)),  # 5
    Part.LineSegment(V(10, 24, 0), V(10, 45, 0)),  # 6
    Part.LineSegment(V(10, 45, 0), V(2, 34, 0)),  # 7
    Part.LineSegment(V(2, 34, 0), V(10, 24, 0)),  # 8
    Part.ArcOfCircle(Part.Circle(V(0, -10, 0), V(0, 0, 1), 33), math.radians(76), math.radians(104)),  # 9
    Part.LineSegment(V(8, 22, 0), V(0, 32, 0)),  # 10
    Part.LineSegment(V(0, 32, 0), V(-8, 22, 0)),  # 11
], False)
sketch11.addConstraint([
    Sketcher.Constraint("Coincident", 0, 2, 1, 1),
    Sketcher.Constraint("Coincident", 1, 2, 2, 1),
    Sketcher.Constraint("Coincident", 2, 2, 0, 1),
    Sketcher.Constraint("Coincident", 3, 2, 4, 1),
    Sketcher.Constraint("Coincident", 4, 2, 5, 1),
    Sketcher.Constraint("Coincident", 5, 2, 3, 1),
    Sketcher.Constraint("Coincident", 6, 2, 7, 1),
    Sketcher.Constraint("Coincident", 7, 2, 8, 1),
    Sketcher.Constraint("Coincident", 8, 2, 6, 1),
    Sketcher.Constraint("Coincident", 9, 1, 10, 1),
    Sketcher.Constraint("Coincident", 10, 2, 11, 1),
    Sketcher.Constraint("Coincident", 11, 2, 9, 2),
    Sketcher.Constraint("Vertical", 1),
    Sketcher.Constraint("Horizontal", 4),
    Sketcher.Constraint("Vertical", 6),
    Sketcher.Constraint("Symmetric", 0, 2, 6, 2, -2),
    Sketcher.Constraint("Symmetric", 2, 2, 7, 2, -2),
    Sketcher.Constraint("Symmetric", 9, 1, 11, 2, -2),
    Sketcher.Constraint("PointOnObject", 5, 2, -2),
    Sketcher.Constraint("PointOnObject", 10, 2, -2),
    Sketcher.Constraint("Parallel", 2, 3),
    Sketcher.Constraint("Parallel", 0, 5),
    Sketcher.Constraint("Parallel", 3, 7),
    Sketcher.Constraint("Parallel", 5, 8),
    Sketcher.Constraint("Parallel", 8, 10),
    Sketcher.Constraint("Vertical", 3, 2, 9, 1),
    Sketcher.Constraint("Equal", 2, 3),
    Sketcher.Constraint("DistanceY", -1, 1, 3, 2, 47.0),
    Sketcher.Constraint("DistanceY", -1, 1, 9, 1, 22.0),
    Sketcher.Constraint("DistanceX", 0, 2, 6, 2, 19.0),
    Sketcher.Constraint("DistanceY", -1, 1, 2, 2, 34.5),
    Sketcher.Constraint("Radius", 9, 32.591942),
    Sketcher.Constraint("DistanceX", 4, 2, 4, 1, 15.231924),
    Sketcher.Constraint("DistanceY", 1, 2, 1, 1, 20.042005),
])
pocket8 = body.newObject("PartDesign::Pocket", "Pocket007")
pocket8.Profile = sketch11
pocket8.Type = "ThroughAll"
doc.recompute()

fillet3 = body.newObject("PartDesign::Fillet", "Fillet002")
fillet3.Base = (pocket8, edges_at(pocket8, [
    (1.884, 34.5, 2.4),
    (9.5, 44.521, 2.4),
    (9.5, 24.479, 2.4),
    (0, 36.979, 2.4),
    (-7.616, 47, 2.4),
    (7.616, 47, 2.4),
    (7.616, 22, 2.4),
    (-7.616, 22, 2.4),
    (0, 32.021, 2.4),
    (-1.884, 34.5, 2.4),
    (-9.5, 24.479, 2.4),
    (-9.5, 44.521, 2.4),
]))
fillet3.Radius = 1

doc.recompute()
